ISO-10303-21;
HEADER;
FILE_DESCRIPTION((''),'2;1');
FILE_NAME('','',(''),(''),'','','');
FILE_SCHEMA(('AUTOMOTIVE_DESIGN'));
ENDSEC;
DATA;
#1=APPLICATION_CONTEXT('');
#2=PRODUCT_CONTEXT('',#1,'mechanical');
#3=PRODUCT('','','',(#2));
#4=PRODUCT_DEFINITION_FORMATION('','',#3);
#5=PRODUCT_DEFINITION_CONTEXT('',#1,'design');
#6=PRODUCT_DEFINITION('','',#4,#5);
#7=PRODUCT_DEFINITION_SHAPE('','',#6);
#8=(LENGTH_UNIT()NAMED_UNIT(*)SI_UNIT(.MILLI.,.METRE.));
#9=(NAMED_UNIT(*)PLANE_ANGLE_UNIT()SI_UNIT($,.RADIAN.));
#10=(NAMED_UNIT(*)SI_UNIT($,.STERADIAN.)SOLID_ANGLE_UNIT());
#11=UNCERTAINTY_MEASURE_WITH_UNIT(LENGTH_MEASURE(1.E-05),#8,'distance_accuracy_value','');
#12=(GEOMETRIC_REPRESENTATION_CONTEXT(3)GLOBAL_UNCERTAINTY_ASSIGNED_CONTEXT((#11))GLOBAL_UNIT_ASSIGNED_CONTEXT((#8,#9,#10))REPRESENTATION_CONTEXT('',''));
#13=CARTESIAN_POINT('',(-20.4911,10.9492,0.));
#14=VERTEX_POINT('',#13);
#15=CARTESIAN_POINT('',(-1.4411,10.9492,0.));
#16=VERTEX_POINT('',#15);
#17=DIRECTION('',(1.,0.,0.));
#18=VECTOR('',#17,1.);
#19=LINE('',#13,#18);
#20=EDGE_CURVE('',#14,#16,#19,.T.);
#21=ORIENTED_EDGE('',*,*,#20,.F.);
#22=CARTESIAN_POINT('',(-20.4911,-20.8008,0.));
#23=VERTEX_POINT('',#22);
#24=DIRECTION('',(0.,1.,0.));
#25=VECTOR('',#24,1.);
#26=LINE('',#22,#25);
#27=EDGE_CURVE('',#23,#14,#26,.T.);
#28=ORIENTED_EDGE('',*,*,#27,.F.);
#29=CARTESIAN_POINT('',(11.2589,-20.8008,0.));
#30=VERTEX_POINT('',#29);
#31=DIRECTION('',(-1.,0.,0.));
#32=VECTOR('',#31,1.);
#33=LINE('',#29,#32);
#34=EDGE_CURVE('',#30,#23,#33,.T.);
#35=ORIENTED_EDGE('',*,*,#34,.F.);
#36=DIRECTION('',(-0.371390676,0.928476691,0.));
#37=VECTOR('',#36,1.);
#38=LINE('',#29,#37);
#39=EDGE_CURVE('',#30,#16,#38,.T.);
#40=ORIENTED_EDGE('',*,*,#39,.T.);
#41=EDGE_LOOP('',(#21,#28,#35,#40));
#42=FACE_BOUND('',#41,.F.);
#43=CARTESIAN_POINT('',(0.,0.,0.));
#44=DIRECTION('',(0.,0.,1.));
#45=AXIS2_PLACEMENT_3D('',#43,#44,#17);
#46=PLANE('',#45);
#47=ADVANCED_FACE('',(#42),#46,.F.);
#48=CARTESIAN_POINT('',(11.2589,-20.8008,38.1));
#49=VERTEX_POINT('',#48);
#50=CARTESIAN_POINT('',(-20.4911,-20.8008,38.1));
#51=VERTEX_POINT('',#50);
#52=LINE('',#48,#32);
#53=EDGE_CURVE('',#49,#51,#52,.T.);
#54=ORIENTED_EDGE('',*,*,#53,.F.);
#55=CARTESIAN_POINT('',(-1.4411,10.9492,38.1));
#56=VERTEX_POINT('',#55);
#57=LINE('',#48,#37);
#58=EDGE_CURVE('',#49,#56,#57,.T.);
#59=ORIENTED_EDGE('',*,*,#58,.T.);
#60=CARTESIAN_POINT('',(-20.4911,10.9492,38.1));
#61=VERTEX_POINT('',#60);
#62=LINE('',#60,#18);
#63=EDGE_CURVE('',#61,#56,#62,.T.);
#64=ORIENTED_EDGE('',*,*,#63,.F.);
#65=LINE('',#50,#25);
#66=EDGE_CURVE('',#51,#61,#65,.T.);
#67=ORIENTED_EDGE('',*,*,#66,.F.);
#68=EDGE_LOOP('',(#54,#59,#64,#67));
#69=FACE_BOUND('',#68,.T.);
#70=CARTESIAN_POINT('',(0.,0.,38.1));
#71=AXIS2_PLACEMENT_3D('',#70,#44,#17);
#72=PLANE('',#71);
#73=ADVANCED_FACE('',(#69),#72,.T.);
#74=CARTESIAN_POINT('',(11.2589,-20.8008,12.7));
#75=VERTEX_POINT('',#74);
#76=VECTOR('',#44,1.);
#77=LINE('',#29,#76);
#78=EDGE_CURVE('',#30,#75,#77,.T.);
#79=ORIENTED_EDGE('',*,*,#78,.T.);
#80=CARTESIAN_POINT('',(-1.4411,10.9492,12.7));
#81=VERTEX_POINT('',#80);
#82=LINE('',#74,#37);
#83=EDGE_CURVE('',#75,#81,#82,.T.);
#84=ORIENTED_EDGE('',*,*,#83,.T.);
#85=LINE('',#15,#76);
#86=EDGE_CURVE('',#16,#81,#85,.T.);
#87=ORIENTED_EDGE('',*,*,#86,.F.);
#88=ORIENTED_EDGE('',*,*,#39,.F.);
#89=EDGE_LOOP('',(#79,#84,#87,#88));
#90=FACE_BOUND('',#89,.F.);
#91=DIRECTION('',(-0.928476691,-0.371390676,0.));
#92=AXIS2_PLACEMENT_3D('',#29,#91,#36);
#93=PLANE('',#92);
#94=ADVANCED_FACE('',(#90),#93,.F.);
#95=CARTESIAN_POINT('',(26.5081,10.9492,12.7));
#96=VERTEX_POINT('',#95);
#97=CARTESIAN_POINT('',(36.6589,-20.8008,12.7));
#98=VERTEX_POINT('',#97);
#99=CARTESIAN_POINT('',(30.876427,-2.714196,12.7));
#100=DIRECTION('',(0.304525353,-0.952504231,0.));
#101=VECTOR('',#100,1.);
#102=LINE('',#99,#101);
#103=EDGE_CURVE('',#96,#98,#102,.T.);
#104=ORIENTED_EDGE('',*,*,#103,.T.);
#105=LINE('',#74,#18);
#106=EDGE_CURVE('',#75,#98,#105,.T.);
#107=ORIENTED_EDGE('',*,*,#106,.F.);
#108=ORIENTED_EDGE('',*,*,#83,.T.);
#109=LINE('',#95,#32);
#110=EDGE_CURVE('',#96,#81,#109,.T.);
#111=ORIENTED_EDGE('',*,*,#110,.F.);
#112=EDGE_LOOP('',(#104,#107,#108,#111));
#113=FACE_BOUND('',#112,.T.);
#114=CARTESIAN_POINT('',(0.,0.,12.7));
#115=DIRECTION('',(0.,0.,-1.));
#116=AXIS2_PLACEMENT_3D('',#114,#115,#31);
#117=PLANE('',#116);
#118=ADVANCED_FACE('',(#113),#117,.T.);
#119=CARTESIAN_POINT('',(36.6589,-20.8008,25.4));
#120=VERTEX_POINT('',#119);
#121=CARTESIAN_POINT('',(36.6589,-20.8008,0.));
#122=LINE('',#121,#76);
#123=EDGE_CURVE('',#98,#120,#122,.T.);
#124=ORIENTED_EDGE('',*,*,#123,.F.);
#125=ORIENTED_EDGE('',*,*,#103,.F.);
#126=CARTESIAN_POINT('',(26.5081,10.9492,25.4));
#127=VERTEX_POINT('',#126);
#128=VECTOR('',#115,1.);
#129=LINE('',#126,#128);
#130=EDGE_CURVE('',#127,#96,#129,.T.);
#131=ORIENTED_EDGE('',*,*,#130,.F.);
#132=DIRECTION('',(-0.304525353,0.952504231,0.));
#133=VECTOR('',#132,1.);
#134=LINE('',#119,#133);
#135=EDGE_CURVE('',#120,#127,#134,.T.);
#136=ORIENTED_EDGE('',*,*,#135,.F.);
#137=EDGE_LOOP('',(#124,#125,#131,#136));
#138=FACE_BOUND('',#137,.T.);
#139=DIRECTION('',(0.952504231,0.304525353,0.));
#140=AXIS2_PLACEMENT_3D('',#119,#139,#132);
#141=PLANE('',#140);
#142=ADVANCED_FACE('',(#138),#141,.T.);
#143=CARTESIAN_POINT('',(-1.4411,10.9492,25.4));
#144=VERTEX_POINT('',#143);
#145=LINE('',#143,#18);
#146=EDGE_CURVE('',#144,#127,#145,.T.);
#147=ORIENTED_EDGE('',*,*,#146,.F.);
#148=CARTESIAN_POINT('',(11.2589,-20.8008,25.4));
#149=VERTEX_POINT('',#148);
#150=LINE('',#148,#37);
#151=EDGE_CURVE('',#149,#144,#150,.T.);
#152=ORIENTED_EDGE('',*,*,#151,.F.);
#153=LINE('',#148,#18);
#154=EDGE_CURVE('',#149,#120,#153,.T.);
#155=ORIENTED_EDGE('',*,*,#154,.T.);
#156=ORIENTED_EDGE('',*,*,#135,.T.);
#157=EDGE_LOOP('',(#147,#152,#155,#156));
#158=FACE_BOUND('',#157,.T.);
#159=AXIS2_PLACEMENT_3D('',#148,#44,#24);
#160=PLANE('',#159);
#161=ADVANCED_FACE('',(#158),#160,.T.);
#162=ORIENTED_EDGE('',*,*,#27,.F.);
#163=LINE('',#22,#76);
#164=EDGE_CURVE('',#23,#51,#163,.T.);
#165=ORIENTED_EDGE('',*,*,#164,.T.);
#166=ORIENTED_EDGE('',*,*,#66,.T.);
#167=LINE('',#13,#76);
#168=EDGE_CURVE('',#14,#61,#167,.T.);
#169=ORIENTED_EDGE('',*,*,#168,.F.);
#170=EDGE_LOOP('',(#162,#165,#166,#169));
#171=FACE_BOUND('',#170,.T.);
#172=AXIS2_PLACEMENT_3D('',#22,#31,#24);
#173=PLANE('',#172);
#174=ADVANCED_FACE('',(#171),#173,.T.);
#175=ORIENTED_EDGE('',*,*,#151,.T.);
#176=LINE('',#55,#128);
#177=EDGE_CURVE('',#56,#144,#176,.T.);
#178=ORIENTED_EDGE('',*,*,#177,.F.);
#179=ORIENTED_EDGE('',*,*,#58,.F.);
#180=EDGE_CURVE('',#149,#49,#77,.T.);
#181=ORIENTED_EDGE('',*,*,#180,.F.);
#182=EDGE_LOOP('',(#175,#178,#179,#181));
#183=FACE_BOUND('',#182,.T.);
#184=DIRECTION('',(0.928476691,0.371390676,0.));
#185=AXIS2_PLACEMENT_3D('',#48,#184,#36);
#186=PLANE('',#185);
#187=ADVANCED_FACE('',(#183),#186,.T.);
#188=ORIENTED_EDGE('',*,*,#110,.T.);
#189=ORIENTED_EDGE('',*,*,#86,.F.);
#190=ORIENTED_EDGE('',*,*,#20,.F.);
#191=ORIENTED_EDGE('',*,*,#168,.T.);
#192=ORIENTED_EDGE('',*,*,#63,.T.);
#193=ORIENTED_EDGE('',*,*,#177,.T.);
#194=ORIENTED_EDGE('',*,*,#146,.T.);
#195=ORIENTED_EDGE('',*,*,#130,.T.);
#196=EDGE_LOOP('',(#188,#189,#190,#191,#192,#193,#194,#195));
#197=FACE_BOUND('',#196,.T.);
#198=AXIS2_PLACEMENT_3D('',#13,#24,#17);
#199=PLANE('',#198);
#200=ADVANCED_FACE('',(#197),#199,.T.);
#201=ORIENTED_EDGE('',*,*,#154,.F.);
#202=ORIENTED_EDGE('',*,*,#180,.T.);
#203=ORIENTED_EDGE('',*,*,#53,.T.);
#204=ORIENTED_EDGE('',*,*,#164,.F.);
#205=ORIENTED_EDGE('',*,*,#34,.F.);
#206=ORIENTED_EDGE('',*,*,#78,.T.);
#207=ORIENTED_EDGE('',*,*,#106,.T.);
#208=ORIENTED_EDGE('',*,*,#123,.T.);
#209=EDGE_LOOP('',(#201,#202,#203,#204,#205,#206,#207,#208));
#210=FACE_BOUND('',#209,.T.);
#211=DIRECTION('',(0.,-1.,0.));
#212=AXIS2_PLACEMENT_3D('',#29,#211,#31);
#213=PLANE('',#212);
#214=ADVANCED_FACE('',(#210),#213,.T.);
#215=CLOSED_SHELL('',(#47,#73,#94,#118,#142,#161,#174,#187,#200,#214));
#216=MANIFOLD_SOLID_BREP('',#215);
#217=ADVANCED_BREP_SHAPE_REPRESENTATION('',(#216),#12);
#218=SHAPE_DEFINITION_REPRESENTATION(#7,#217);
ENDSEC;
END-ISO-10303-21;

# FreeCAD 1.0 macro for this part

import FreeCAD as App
import Part
import Sketcher
Q = App.Units.Quantity

doc = App.newDocument("Part")
params = doc.addObject("Spreadsheet::Sheet", "Params")
for row, (alias, value) in enumerate([
    ("sketch1_width", "1.25 in"),
    ("pad1_length", "1.5 in"),
    ("sketch2_height", "0.5 in"),
    ("sketch2_width", "1.25 in"),
    ("pad2_length", "1 in"),
    ("sketch3_height", "1.25 in"),
    ("pocket1_length", "1 in"),
    ("sketch4_width", "0.5 in"),
    ("sketch4_height", "1.25 in"),
    ("pocket2_length", "0.5 in"),
    ("sketch5_width", "0.5 in"),
    ("sketch5_height", "1.25 in"),
    ("pocket3_length", "0.5 in"),
], start=1):
    params.set(f"A{row}", alias)
    params.set(f"B{row}", "=" + value)
    params.setAlias(f"B{row}", alias)

body = doc.addObject("PartDesign::Body", "Body")

sketch1 = body.newObject("Sketcher::SketchObject", "Sketch")
sketch1.AttachmentSupport = (doc.getObject("XY_Plane"), [""])
sketch1.MapMode = "FlatFace"
sketch1.addGeometry([
    Part.LineSegment(App.Vector(11, 11, 0), App.Vector(-20, 11, 0)),
    Part.LineSegment(App.Vector(-20, 11, 0), App.Vector(-20, -21, 0)),
    Part.LineSegment(App.Vector(-20, -21, 0), App.Vector(11, -21, 0)),
    Part.LineSegment(App.Vector(11, -21, 0), App.Vector(11, 11, 0)),
], False)
sketch1.addConstraint([
    Sketcher.Constraint("Coincident", 0, 2, 1, 1),
    Sketcher.Constraint("Coincident", 1, 2, 2, 1),
    Sketcher.Constraint("Coincident", 2, 2, 3, 1),
    Sketcher.Constraint("Coincident", 3, 2, 0, 1),
    Sketcher.Constraint("Horizontal", 0),
    Sketcher.Constraint("Vertical", 1),
    Sketcher.Constraint("Horizontal", 2),
    Sketcher.Constraint("Vertical", 3),
    Sketcher.Constraint("Equal", 2, 1),
    Sketcher.Constraint("DistanceX", 0, 2, 0, 1, Q("1.25 in")),
    Sketcher.Constraint("DistanceX", 0, 2, -1, 1, Q("20.491 mm")),
    Sketcher.Constraint("DistanceY", -1, 1, 0, 2, Q("10.9492 mm")),
])
sketch1.setExpression("Constraints[9]", "Params.sketch1_width")
pad1 = body.newObject("PartDesign::Pad", "Pad")
pad1.Profile = sketch1
pad1.setExpression("Length", "Params.pad1_length")

sketch2 = body.newObject("Sketcher::SketchObject", "Sketch001")
sketch2.AttachmentSupport = (doc.getObject("YZ_Plane"), [""])
sketch2.MapMode = "FlatFace"
sketch2.AttachmentOffset = App.Placement(App.Vector(0, 0, 11.2589), App.Rotation())
sketch2.addGeometry([
    Part.LineSegment(App.Vector(-21, 13, 0), App.Vector(11, 13, 0)),
    Part.LineSegment(App.Vector(11, 13, 0), App.Vector(11, 25, 0)),
    Part.LineSegment(App.Vector(11, 25, 0), App.Vector(-21, 25, 0)),
    Part.LineSegment(App.Vector(-21, 25, 0), App.Vector(-21, 13, 0)),
], False)
sketch2.addConstraint([
    Sketcher.Constraint("Coincident", 0, 2, 1, 1),
    Sketcher.Constraint("Coincident", 1, 2, 2, 1),
    Sketcher.Constraint("Coincident", 2, 2, 3, 1),
    Sketcher.Constraint("Coincident", 3, 2, 0, 1),
    Sketcher.Constraint("Horizontal", 0),
    Sketcher.Constraint("Vertical", 1),
    Sketcher.Constraint("Horizontal", 2),
    Sketcher.Constraint("Vertical", 3),
    Sketcher.Constraint("DistanceY", 1, 1, 1, 2, Q("0.5 in")),
    Sketcher.Constraint("DistanceY", -1, 1, 0, 2, Q("0.5 in")),
    Sketcher.Constraint("DistanceX", 0, 1, 0, 2, Q("1.25 in")),
    Sketcher.Constraint("DistanceX", -1, 1, 0, 2, Q("10.9492 mm")),
])
sketch2.setExpression("Constraints[8]", "Params.sketch2_height")
sketch2.setExpression("Constraints[10]", "Params.sketch2_width")
pad2 = body.newObject("PartDesign::Pad", "Pad001")
pad2.Profile = sketch2
pad2.setExpression("Length", "Params.pad2_length")

sketch3 = body.newObject("Sketcher::SketchObject", "Sketch002")
sketch3.AttachmentSupport = (doc.getObject("XY_Plane"), [""])
sketch3.MapMode = "FlatFace"
sketch3.AttachmentOffset = App.Placement(App.Vector(0, 0, 1 * 25.4), App.Rotation())
sketch3.addGeometry([
    Part.LineSegment(App.Vector(27, 11, 0), App.Vector(37, -21, 0)),
    Part.LineSegment(App.Vector(37, -21, 0), App.Vector(37, 11, 0)),
    Part.LineSegment(App.Vector(37, 11, 0), App.Vector(27, 11, 0)),
], False)
sketch3.addConstraint([
    Sketcher.Constraint("Coincident", 0, 2, 1, 1),
    Sketcher.Constraint("Coincident", 1, 2, 2, 1),
    Sketcher.Constraint("Coincident", 2, 2, 0, 1),
    Sketcher.Constraint("Vertical", 1),
    Sketcher.Constraint("Horizontal", 2),
    Sketcher.Constraint("DistanceY", 1, 1, 1, 2, Q("1.25 in")),
    Sketcher.Constraint("Angle", 0, Q("-72.2704 deg")),
    Sketcher.Constraint("DistanceX", -1, 1, 0, 2, Q("36.659 mm")),
    Sketcher.Constraint("DistanceY", 0, 2, -1, 1, Q("20.8008 mm")),
])
sketch3.setExpression("Constraints[5]", "Params.sketch3_height")
pocket1 = body.newObject("PartDesign::Pocket", "Pocket")
pocket1.Profile = sketch3
pocket1.setExpression("Length", "Params.pocket1_length")

sketch4 = body.newObject("Sketcher::SketchObject", "Sketch003")
sketch4.AttachmentSupport = (doc.getObject("XY_Plane"), [""])
sketch4.MapMode = "FlatFace"
sketch4.AttachmentOffset = App.Placement(App.Vector(0, 0, 1.5 * 25.4), App.Rotation())
sketch4.addGeometry([
    Part.LineSegment(App.Vector(-1, 11, 0), App.Vector(11, -21, 0)),
    Part.LineSegment(App.Vector(11, -21, 0), App.Vector(11, 11, 0)),
    Part.LineSegment(App.Vector(11, 11, 0), App.Vector(-1, 11, 0)),
], False)
sketch4.addConstraint([
    Sketcher.Constraint("Coincident", 0, 2, 1, 1),
    Sketcher.Constraint("Coincident", 1, 2, 2, 1),
    Sketcher.Constraint("Coincident", 2, 2, 0, 1),
    Sketcher.Constraint("Vertical", 1),
    Sketcher.Constraint("Horizontal", 2),
    Sketcher.Constraint("DistanceX", 2, 2, 2, 1, Q("0.5 in")),
    Sketcher.Constraint("DistanceY", 1, 1, 1, 2, Q("1.25 in")),
    Sketcher.Constraint("DistanceX", -1, 1, 0, 2, Q("11.259 mm")),
    Sketcher.Constraint("DistanceY", 0, 2, -1, 1, Q("20.8008 mm")),
])
sketch4.setExpression("Constraints[5]", "Params.sketch4_width")
sketch4.setExpression("Constraints[6]", "Params.sketch4_height")
pocket2 = body.newObject("PartDesign::Pocket", "Pocket001")
pocket2.Profile = sketch4
pocket2.setExpression("Length", "Params.pocket2_length")

sketch5 = body.newObject("Sketcher::SketchObject", "Sketch004")
sketch5.AttachmentSupport = (doc.getObject("XY_Plane"), [""])
sketch5.MapMode = "FlatFace"
sketch5.addGeometry([
    Part.LineSegment(App.Vector(-1, 11, 0), App.Vector(11, 11, 0)),
    Part.LineSegment(App.Vector(11, 11, 0), App.Vector(11, -21, 0)),
    Part.LineSegment(App.Vector(11, -21, 0), App.Vector(-1, 11, 0)),
], False)
sketch5.addConstraint([
    Sketcher.Constraint("Coincident", 0, 2, 1, 1),
    Sketcher.Constraint("Coincident", 1, 2, 2, 1),
    Sketcher.Constraint("Coincident", 2, 2, 0, 1),
    Sketcher.Constraint("Horizontal", 0),
    Sketcher.Constraint("Vertical", 1),
    Sketcher.Constraint("DistanceX", 0, 1, 0, 2, Q("0.5 in")),
    Sketcher.Constraint("DistanceY", 1, 2, 1, 1, Q("1.25 in")),
    Sketcher.Constraint("DistanceX", -1, 1, 0, 2, Q("11.259 mm")),
    Sketcher.Constraint("DistanceY", -1, 1, 0, 2, Q("10.9492 mm")),
])
sketch5.setExpression("Constraints[5]", "Params.sketch5_width")
sketch5.setExpression("Constraints[6]", "Params.sketch5_height")
pocket3 = body.newObject("PartDesign::Pocket", "Pocket002")
pocket3.Profile = sketch5
pocket3.setExpression("Length", "Params.pocket3_length")
pocket3.Reversed = True

doc.recompute()
